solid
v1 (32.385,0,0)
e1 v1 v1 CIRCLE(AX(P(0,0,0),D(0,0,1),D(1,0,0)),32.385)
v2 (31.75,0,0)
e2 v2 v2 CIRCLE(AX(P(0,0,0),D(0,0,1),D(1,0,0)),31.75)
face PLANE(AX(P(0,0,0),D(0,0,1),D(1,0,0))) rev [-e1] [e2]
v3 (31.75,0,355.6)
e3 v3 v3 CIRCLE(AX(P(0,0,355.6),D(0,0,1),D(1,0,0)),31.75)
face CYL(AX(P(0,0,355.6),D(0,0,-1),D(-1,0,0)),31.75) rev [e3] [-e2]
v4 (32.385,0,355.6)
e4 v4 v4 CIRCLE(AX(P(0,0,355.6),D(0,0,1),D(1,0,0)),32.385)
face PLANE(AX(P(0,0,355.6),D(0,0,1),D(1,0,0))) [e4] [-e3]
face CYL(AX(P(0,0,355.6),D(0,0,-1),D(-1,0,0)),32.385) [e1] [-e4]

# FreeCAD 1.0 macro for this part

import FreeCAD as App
import Part
import Sketcher
Q = App.Units.Quantity

doc = App.newDocument("Part")
params = doc.addObject("Spreadsheet::Sheet", "Params")
for row, (alias, value) in enumerate([
    ("sketch1_diameter", "2.5 in"),
    ("sketch1_diameter2", "2.55 in"),
    ("pad1_length", "14 in"),
], start=1):
    params.set(f"A{row}", alias)
    params.set(f"B{row}", "=" + value)
    params.setAlias(f"B{row}", alias)

body = doc.addObject("PartDesign::Body", "Body")

sketch1 = body.newObject("Sketcher::SketchObject", "Sketch")
sketch1.AttachmentSupport = (doc.getObject("XY_Plane"), [""])
sketch1.MapMode = "FlatFace"
sketch1.addGeometry([
    Part.Circle(App.Vector(0, 0, 0), App.Vector(0, 0, 1), 32),
    Part.Circle(App.Vector(0, 0, 0), App.Vector(0, 0, 1), 32),
], False)
sketch1.addConstraint([
    Sketcher.Constraint("Coincident", 0, 3, -1, 1),
    Sketcher.Constraint("Coincident", 1, 3, -1, 1),
    Sketcher.Constraint("Diameter", 1, Q("2.5 in")),
    Sketcher.Constraint("Diameter", 0, Q("2.55 in")),
])
sketch1.setExpression("Constraints[2]", "Params.sketch1_diameter")
sketch1.setExpression("Constraints[3]", "Params.sketch1_diameter2")
pad1 = body.newObject("PartDesign::Pad", "Pad")
pad1.Profile = sketch1
pad1.setExpression("Length", "Params.pad1_length")

doc.recompute()
